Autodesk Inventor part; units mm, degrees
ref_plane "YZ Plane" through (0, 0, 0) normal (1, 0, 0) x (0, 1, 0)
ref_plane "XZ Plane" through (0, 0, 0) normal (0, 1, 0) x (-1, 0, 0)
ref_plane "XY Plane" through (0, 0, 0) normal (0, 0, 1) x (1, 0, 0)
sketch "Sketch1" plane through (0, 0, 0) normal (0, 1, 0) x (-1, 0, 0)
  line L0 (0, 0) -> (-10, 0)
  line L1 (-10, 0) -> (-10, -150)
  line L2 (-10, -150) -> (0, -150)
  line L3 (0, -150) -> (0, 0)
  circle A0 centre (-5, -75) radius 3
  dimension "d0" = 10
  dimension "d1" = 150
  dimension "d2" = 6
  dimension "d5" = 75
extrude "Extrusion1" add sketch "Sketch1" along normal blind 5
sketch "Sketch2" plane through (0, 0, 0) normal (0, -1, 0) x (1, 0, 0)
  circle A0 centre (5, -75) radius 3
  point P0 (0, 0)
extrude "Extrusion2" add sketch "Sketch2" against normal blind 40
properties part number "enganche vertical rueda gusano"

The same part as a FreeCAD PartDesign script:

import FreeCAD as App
import Part
import Sketcher

V = App.Vector
Q = App.Units.Quantity

doc = App.newDocument("Part")
body = doc.addObject("PartDesign::Body", "Body")

# Sketch on XZ plane
sketch1 = body.newObject("Sketcher::SketchObject", "Sketch")
sketch1.AttachmentSupport = (doc.getObject("XZ_Plane"), [""])
sketch1.MapMode = "FlatFace"
sketch1.addGeometry(Part.LineSegment(V(0, -150, 0), V(0, 0, 0)), False)
sketch1.addGeometry(Part.LineSegment(V(0, 0, 0), V(10, 0, 0)), False)
sketch1.addGeometry(Part.LineSegment(V(10, 0, 0), V(10, -150, 0)), False)
sketch1.addGeometry(Part.LineSegment(V(10, -150, 0), V(0, -150, 0)), False)
sketch1.addGeometry(Part.Circle(V(5, -75, 0), V(0, 0, 1), 3), False)
sketch1.addConstraint(Sketcher.Constraint("Coincident", 0, 2, 1, 1))
sketch1.addConstraint(Sketcher.Constraint("Coincident", 1, 2, 2, 1))
sketch1.addConstraint(Sketcher.Constraint("Coincident", 2, 2, 3, 1))
sketch1.addConstraint(Sketcher.Constraint("Coincident", 3, 2, 0, 1))
sketch1.addConstraint(Sketcher.Constraint("Vertical", 0))
sketch1.addConstraint(Sketcher.Constraint("Horizontal", 1))
sketch1.addConstraint(Sketcher.Constraint("Vertical", 2))
sketch1.addConstraint(Sketcher.Constraint("Horizontal", 3))
sketch1.addConstraint(Sketcher.Constraint("Coincident", 0, 2, -1, 1))
sketch1.addConstraint(Sketcher.Constraint("Diameter", 4, Q("6 mm")))
sketch1.addConstraint(Sketcher.Constraint("DistanceX", 1, 1, 1, 2, Q("10 mm")))
sketch1.addConstraint(Sketcher.Constraint("DistanceY", 0, 1, 0, 2, Q("150 mm")))
sketch1.addConstraint(Sketcher.Constraint("DistanceY", 4, 3, -1, 1, Q("75 mm")))
sketch1.addConstraint(Sketcher.Constraint("DistanceX", -1, 1, 4, 3, Q("5 mm")))
pad1 = body.newObject("PartDesign::Pad", "Pad")
pad1.Profile = sketch1
pad1.Length = 5
pad1.Reversed = True

# Sketch on XZ plane
sketch2 = body.newObject("Sketcher::SketchObject", "Sketch001")
sketch2.AttachmentSupport = (doc.getObject("XZ_Plane"), [""])
sketch2.MapMode = "FlatFace"
sketch2.addGeometry(Part.Circle(V(5, -75, 0), V(0, 0, 1), 3), False)
sketch2.addConstraint(Sketcher.Constraint("Diameter", 0, Q("6 mm")))
sketch2.addConstraint(Sketcher.Constraint("DistanceX", -1, 1, 0, 3, Q("5 mm")))
sketch2.addConstraint(Sketcher.Constraint("DistanceY", 0, 3, -1, 1, Q("75 mm")))
pad2 = body.newObject("PartDesign::Pad", "Pad001")
pad2.Profile = sketch2
pad2.Length = 40
pad2.Reversed = True

doc.recompute()
